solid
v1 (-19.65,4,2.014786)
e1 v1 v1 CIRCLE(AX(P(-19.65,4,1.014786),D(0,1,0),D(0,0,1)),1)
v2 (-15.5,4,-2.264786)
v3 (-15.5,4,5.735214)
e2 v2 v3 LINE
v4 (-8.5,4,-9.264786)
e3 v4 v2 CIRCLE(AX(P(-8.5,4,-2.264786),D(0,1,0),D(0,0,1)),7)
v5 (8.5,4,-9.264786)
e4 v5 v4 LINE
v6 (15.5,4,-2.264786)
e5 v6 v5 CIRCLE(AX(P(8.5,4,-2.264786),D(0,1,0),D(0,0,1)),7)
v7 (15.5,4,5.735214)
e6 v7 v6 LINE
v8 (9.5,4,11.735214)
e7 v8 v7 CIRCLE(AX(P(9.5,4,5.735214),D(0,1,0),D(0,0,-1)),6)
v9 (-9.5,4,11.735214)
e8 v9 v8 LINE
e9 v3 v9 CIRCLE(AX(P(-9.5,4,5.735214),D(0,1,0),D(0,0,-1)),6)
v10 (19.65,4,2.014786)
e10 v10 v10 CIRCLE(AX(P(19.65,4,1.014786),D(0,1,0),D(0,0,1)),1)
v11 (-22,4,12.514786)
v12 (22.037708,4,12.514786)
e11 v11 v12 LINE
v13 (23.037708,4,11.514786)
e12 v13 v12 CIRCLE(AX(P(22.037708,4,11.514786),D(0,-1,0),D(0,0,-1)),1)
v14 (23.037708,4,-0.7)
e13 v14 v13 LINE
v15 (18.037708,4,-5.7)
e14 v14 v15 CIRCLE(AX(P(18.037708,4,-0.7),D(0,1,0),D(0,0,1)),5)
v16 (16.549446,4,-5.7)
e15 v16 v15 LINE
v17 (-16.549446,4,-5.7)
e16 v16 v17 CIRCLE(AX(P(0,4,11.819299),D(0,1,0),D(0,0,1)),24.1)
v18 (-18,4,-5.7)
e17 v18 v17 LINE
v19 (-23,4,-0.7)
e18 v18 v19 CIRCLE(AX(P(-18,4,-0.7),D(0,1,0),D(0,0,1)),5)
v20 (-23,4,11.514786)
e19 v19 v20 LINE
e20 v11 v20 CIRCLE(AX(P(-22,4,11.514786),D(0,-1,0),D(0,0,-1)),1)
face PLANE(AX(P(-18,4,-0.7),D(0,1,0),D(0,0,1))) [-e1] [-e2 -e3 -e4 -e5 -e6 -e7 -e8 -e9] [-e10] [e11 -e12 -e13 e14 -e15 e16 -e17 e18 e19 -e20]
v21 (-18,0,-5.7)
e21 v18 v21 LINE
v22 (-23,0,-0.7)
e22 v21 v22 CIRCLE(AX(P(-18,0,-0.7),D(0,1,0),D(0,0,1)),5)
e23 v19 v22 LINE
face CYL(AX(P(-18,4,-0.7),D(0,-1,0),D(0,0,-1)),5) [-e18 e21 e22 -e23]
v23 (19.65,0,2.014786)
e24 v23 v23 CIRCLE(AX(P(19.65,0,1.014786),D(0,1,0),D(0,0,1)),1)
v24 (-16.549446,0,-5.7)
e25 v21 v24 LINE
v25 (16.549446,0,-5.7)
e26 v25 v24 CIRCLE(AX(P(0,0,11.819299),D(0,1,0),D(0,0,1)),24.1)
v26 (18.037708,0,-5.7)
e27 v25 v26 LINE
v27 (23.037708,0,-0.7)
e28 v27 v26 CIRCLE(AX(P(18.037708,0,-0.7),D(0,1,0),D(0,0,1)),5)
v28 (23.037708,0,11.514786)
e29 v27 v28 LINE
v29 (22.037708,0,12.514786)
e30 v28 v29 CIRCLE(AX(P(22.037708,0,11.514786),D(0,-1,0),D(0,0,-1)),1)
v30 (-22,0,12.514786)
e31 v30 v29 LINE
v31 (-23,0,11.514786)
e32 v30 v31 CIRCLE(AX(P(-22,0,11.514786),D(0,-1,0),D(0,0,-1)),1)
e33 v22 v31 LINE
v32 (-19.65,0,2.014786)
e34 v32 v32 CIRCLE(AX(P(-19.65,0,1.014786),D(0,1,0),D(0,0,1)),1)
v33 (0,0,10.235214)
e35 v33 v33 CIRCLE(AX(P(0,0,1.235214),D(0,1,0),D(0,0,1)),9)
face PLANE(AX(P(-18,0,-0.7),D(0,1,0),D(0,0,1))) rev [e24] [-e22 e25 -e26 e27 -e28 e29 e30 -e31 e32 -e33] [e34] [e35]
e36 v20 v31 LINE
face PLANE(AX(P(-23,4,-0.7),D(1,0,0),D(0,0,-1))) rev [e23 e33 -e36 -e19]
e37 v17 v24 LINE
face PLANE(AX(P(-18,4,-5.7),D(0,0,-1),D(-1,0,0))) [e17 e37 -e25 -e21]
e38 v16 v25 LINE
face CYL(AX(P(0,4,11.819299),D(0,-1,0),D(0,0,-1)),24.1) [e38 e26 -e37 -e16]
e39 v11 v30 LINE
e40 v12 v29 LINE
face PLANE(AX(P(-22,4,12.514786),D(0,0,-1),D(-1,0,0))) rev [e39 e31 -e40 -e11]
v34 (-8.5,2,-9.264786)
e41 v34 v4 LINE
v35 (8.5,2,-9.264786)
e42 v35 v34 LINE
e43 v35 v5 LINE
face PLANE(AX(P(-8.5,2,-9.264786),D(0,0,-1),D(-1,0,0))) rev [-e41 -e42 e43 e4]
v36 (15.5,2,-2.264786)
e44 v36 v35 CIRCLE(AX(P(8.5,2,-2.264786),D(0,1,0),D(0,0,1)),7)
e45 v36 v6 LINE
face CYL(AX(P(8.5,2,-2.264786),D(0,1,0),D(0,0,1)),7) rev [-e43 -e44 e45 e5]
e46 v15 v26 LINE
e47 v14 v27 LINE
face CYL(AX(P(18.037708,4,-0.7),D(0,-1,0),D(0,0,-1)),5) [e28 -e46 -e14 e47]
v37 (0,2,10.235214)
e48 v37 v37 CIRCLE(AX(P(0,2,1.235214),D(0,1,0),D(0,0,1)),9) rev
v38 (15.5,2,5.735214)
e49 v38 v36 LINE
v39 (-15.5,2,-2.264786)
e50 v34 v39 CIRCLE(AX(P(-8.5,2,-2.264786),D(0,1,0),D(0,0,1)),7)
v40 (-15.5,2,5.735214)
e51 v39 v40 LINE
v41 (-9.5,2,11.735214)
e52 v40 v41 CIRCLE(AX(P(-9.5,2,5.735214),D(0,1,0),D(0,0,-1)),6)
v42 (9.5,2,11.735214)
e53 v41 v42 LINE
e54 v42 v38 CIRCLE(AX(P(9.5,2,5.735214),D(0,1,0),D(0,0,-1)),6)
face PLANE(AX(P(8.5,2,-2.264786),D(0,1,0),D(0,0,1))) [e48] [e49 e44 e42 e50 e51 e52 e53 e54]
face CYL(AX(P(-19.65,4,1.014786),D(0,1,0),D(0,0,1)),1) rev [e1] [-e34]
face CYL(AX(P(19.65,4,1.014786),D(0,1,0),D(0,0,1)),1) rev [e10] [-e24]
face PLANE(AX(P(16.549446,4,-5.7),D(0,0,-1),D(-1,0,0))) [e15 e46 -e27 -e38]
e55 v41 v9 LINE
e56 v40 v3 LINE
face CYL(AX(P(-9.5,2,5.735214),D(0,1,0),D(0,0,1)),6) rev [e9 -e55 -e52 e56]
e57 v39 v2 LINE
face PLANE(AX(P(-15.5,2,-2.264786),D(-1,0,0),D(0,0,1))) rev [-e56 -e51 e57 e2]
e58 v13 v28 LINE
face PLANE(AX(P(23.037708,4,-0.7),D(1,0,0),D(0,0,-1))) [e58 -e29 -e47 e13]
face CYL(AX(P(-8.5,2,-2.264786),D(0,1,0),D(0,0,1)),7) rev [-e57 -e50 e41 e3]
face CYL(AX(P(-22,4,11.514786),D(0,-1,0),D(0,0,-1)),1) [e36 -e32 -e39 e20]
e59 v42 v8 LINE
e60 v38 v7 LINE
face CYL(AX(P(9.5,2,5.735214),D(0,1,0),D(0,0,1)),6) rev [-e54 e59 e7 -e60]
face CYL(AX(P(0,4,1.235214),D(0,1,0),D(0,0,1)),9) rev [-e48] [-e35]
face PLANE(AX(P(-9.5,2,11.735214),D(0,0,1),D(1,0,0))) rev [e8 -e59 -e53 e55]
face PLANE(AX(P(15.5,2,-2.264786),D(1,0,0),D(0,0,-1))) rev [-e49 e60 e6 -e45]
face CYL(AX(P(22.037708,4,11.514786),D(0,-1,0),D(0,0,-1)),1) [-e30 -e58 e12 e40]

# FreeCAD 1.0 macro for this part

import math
import FreeCAD as App
import Part
import Sketcher

doc = App.newDocument("Part")
params = doc.addObject("Spreadsheet::Sheet", "Params")
for row, (alias, value) in enumerate([
    ("sketch1_radius", "5 mm"),
    ("sketch1_radius2", "1 mm"),
    ("sketch1_radius3", "24.1 mm"),
    ("pad1_length", "4 mm"),
    ("sketch2_diameter", "18 mm"),
    ("hole_diameter", "18 mm"),
    ("sketch3_diameter", "2 mm"),
    ("hole2_diameter", "2 mm"),
    ("hole2_depth", "10 mm"),
    ("sketch4_radius", "7 mm"),
    ("sketch4_radius2", "6 mm"),
    ("sketch4_width", "17 mm"),
    ("sketch4_height", "8 mm"),
    ("pocket1_length", "2 mm"),
], start=1):
    params.set(f"A{row}", alias)
    params.set(f"B{row}", "=" + value)
    params.setAlias(f"B{row}", alias)

body = doc.addObject("PartDesign::Body", "Body")

# Sketch on XZ plane
sketch1 = doc.addObject("Sketcher::SketchObject", "Sketch")
body.addObject(sketch1)
sketch1.AttachmentSupport = (doc.XZ_Plane, [""])
sketch1.MapMode = "FlatFace"
sketch1.addGeometry([
    Part.LineSegment(App.Vector(18.037708, -5.7, 0), App.Vector(16.549446, -5.7, 0)),  # 0
    Part.ArcOfCircle(Part.Circle(App.Vector(0, 11.819299, 0), App.Vector(0, 0, 1), 24.1), math.radians(-133.369372), math.radians(-46.630628)),  # 1
    Part.LineSegment(App.Vector(-16.549446, -5.7, 0), App.Vector(-18, -5.7, 0)),  # 2
    Part.ArcOfCircle(Part.Circle(App.Vector(-18, -0.7, 0), App.Vector(0, 0, 1), 5), math.radians(180), math.radians(270)),  # 3
    Part.LineSegment(App.Vector(-23, -0.7, 0), App.Vector(-23, 11.514786, 0)),  # 4
    Part.ArcOfCircle(Part.Circle(App.Vector(-22, 11.514786, 0), App.Vector(0, 0, 1), 1), math.radians(90), math.radians(180)),  # 5
    Part.LineSegment(App.Vector(-22, 12.514786, 0), App.Vector(22.037708, 12.514786, 0)),  # 6
    Part.ArcOfCircle(Part.Circle(App.Vector(22.037708, 11.514786, 0), App.Vector(0, 0, 1), 1), math.radians(0), math.radians(90)),  # 7
    Part.LineSegment(App.Vector(23.037708, 11.514786, 0), App.Vector(23.037708, -0.7, 0)),  # 8
    Part.ArcOfCircle(Part.Circle(App.Vector(18.037708, -0.7, 0), App.Vector(0, 0, 1), 5), math.radians(-90), math.radians(0)),  # 9
], False)
sketch1.addConstraint([
    Sketcher.Constraint("Coincident", 0, 2, 1, 2),
    Sketcher.Constraint("Coincident", 1, 1, 2, 1),
    Sketcher.Constraint("Tangent", 2, 2, 3, 2),
    Sketcher.Constraint("Tangent", 3, 1, 4, 1),
    Sketcher.Constraint("Tangent", 4, 2, 5, 2),
    Sketcher.Constraint("Tangent", 5, 1, 6, 1),
    Sketcher.Constraint("Tangent", 6, 2, 7, 2),
    Sketcher.Constraint("Tangent", 7, 1, 8, 1),
    Sketcher.Constraint("Tangent", 8, 2, 9, 2),
    Sketcher.Constraint("Tangent", 9, 1, 0, 1),
    Sketcher.Constraint("Horizontal", 0),
    Sketcher.Constraint("Horizontal", 2),
    Sketcher.Constraint("Vertical", 4),
    Sketcher.Constraint("Horizontal", 6),
    Sketcher.Constraint("Vertical", 8),
    Sketcher.Constraint("Equal", 5, 7),
    Sketcher.Constraint("Equal", 3, 9),
    Sketcher.Constraint("Symmetric", 0, 2, 1, 1, -2),
    Sketcher.Constraint("Radius", 3, 5.0),
    Sketcher.Constraint("Radius", 5, 1.0),
    Sketcher.Constraint("Radius", 1, 24.1),
    Sketcher.Constraint("DistanceX", 3, 3, -1, 1, 18.0),
    Sketcher.Constraint("DistanceY", 3, 3, -1, 1, 0.7),
    Sketcher.Constraint("DistanceX", 6, 1, 6, 2, 44.037708),
    Sketcher.Constraint("DistanceY", -1, 1, 1, 3, 11.819299),
    Sketcher.Constraint("DistanceY", 4, 1, 4, 2, 12.214786),
])
sketch1.setExpression("Constraints[18]", "Params.sketch1_radius")
sketch1.setExpression("Constraints[19]", "Params.sketch1_radius2")
sketch1.setExpression("Constraints[20]", "Params.sketch1_radius3")
pad1 = doc.addObject("PartDesign::Pad", "Pad")
body.addObject(pad1)
pad1.Profile = sketch1
pad1.setExpression("Length", "Params.pad1_length")
pad1.Reversed = True

# Sketch on XZ plane
sketch2 = doc.addObject("Sketcher::SketchObject", "Sketch001")
body.addObject(sketch2)
sketch2.AttachmentSupport = (doc.XZ_Plane, [""])
sketch2.MapMode = "FlatFace"
sketch2.AttachmentOffset = App.Placement(App.Vector(0, 0, -4), App.Rotation())
sketch2.addGeometry(Part.Circle(App.Vector(0, 1.235214, 0), App.Vector(0, 0, 1), 9), False)
sketch2.addConstraint([
    Sketcher.Constraint("PointOnObject", 0, 3, -2),
    Sketcher.Constraint("Diameter", 0, 18.0),
    Sketcher.Constraint("DistanceY", -1, 1, 0, 3, 1.235214),
])
sketch2.setExpression("Constraints[1]", "Params.sketch2_diameter")
doc.recompute()
hole = doc.addObject("PartDesign::Hole", "Hole")
body.addObject(hole)
hole.Profile = sketch2
hole.ThreadType = "None"
hole.setExpression("Diameter", "Params.hole_diameter")
hole.DepthType = "ThroughAll"
hole.Reversed = True

# Sketch on XZ plane
sketch3 = doc.addObject("Sketcher::SketchObject", "Sketch002")
body.addObject(sketch3)
sketch3.AttachmentSupport = (doc.XZ_Plane, [""])
sketch3.MapMode = "FlatFace"
sketch3.AttachmentOffset = App.Placement(App.Vector(0, 0, -4), App.Rotation())
sketch3.addGeometry([
    Part.Circle(App.Vector(-19.65, 1.014786, 0), App.Vector(0, 0, 1), 1),
    Part.Circle(App.Vector(19.65, 1.014786, 0), App.Vector(0, 0, 1), 1),
], False)
sketch3.addConstraint([
    Sketcher.Constraint("Equal", 0, 1),
    Sketcher.Constraint("Symmetric", 0, 3, 1, 3, -2),
    Sketcher.Constraint("Diameter", 0, 2.0),
    Sketcher.Constraint("DistanceX", 0, 3, 1, 3, 39.3),
    Sketcher.Constraint("DistanceY", -1, 1, 0, 3, 1.014786),
])
sketch3.setExpression("Constraints[2]", "Params.sketch3_diameter")
doc.recompute()
hole2 = doc.addObject("PartDesign::Hole", "Hole001")
body.addObject(hole2)
hole2.Profile = sketch3
hole2.ThreadType = "None"
hole2.setExpression("Diameter", "Params.hole2_diameter")
hole2.DepthType = "Dimension"
hole2.setExpression("Depth", "Params.hole2_depth")
hole2.DrillPoint = "Flat"
hole2.Reversed = True

# Sketch on XZ plane
sketch4 = doc.addObject("Sketcher::SketchObject", "Sketch003")
body.addObject(sketch4)
sketch4.AttachmentSupport = (doc.XZ_Plane, [""])
sketch4.MapMode = "FlatFace"
sketch4.AttachmentOffset = App.Placement(App.Vector(0, 0, -4), App.Rotation())
sketch4.addGeometry([
    Part.LineSegment(App.Vector(8.5, -9.264786, 0), App.Vector(-8.5, -9.264786, 0)),  # 0
    Part.ArcOfCircle(Part.Circle(App.Vector(-8.5, -2.264786, 0), App.Vector(0, 0, 1), 7), math.radians(-180), math.radians(-90)),  # 1
    Part.LineSegment(App.Vector(-15.5, -2.264786, 0), App.Vector(-15.5, 5.735214, 0)),  # 2
    Part.ArcOfCircle(Part.Circle(App.Vector(-9.5, 5.735214, 0), App.Vector(0, 0, 1), 6), math.radians(90), math.radians(180)),  # 3
    Part.LineSegment(App.Vector(-9.5, 11.735214, 0), App.Vector(9.5, 11.735214, 0)),  # 4
    Part.ArcOfCircle(Part.Circle(App.Vector(9.5, 5.735214, 0), App.Vector(0, 0, 1), 6), math.radians(0), math.radians(90)),  # 5
    Part.LineSegment(App.Vector(15.5, 5.735214, 0), App.Vector(15.5, -2.264786, 0)),  # 6
    Part.ArcOfCircle(Part.Circle(App.Vector(8.5, -2.264786, 0), App.Vector(0, 0, 1), 7), math.radians(-90), math.radians(0)),  # 7
], False)
sketch4.addConstraint([
    Sketcher.Constraint("Tangent", 0, 2, 1, 2),
    Sketcher.Constraint("Tangent", 1, 1, 2, 1),
    Sketcher.Constraint("Tangent", 2, 2, 3, 2),
    Sketcher.Constraint("Tangent", 3, 1, 4, 1),
    Sketcher.Constraint("Tangent", 4, 2, 5, 2),
    Sketcher.Constraint("Tangent", 5, 1, 6, 1),
    Sketcher.Constraint("Tangent", 6, 2, 7, 2),
    Sketcher.Constraint("Tangent", 7, 1, 0, 1),
    Sketcher.Constraint("Horizontal", 0),
    Sketcher.Constraint("Vertical", 2),
    Sketcher.Constraint("Horizontal", 4),
    Sketcher.Constraint("Vertical", 6),
    Sketcher.Constraint("Equal", 3, 5),
    Sketcher.Constraint("Equal", 1, 7),
    Sketcher.Constraint("Radius", 1, 7.0),
    Sketcher.Constraint("Radius", 3, 6.0),
    Sketcher.Constraint("DistanceX", 0, 2, 0, 1, 17.0),
    Sketcher.Constraint("DistanceY", 2, 1, 2, 2, 8.0),
    Sketcher.Constraint("DistanceX", 1, 3, -1, 1, 8.5),
    Sketcher.Constraint("DistanceY", 1, 3, -1, 1, 2.264786),
])
sketch4.setExpression("Constraints[14]", "Params.sketch4_radius")
sketch4.setExpression("Constraints[15]", "Params.sketch4_radius2")
sketch4.setExpression("Constraints[16]", "Params.sketch4_width")
sketch4.setExpression("Constraints[17]", "Params.sketch4_height")
pocket1 = doc.addObject("PartDesign::Pocket", "Pocket")
body.addObject(pocket1)
pocket1.Profile = sketch4
pocket1.setExpression("Length", "Params.pocket1_length")
pocket1.Reversed = True

doc.recompute()
